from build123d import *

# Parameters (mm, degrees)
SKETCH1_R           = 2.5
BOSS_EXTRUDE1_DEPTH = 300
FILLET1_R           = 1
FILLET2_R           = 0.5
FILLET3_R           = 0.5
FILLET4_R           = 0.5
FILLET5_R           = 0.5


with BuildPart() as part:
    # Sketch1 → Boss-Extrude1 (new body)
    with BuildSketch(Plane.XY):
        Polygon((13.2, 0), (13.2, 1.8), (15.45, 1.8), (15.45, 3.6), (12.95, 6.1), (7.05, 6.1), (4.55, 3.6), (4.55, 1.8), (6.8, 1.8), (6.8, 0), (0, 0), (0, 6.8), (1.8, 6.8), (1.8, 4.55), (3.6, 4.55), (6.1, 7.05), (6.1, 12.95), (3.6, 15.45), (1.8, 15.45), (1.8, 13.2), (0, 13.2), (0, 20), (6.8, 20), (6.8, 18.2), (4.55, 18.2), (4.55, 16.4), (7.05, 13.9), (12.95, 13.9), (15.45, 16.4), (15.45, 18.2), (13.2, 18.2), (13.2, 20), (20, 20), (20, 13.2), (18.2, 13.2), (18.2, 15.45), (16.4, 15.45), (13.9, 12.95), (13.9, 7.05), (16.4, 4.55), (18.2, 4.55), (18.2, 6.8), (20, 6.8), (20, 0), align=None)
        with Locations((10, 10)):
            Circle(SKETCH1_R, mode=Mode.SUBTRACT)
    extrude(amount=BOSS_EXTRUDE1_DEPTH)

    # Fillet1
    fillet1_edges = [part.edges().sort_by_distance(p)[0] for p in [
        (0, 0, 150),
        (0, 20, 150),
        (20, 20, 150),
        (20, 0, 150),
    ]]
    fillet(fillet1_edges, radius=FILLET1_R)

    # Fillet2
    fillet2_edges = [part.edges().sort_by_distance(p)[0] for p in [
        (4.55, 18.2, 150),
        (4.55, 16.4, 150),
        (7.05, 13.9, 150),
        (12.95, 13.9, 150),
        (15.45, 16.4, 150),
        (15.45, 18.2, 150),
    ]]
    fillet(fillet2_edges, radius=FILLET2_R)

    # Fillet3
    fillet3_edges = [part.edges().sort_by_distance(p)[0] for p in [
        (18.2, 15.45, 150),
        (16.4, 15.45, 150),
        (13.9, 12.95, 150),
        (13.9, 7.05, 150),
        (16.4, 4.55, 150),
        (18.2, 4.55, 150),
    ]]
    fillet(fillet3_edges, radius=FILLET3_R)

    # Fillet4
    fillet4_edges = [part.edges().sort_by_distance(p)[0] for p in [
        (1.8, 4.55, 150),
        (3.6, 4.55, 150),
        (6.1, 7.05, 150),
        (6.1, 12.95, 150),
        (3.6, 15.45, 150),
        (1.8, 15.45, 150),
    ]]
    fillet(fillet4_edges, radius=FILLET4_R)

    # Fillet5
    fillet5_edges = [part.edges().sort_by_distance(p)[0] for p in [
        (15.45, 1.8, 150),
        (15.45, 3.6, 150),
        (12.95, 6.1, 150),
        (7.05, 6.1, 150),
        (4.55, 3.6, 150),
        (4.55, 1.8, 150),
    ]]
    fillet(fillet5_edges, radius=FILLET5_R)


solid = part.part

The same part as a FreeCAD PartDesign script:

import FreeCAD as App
import Part
import Sketcher
from FreeCAD import Vector


def edges_at(feature, points):
    """Names of the edges that pass closest to the given points."""
    edges = feature.Shape.Edges
    near = lambda p: min(range(len(edges)), key=lambda i: edges[i].distToShape(Part.Vertex(*p))[0])
    return sorted({f"Edge{near(p) + 1}" for p in points})

doc = App.newDocument("Part")
body = doc.addObject("PartDesign::Body", "Body")

sketch1 = body.newObject("Sketcher::SketchObject", "Sketch")
sketch1.AttachmentSupport = (doc.getObject("XY_Plane"), [""])
sketch1.MapMode = "FlatFace"
sketch1.addGeometry(Part.LineSegment(Vector(13.2, 1.8, 0), Vector(13.2, 0, 0)), False)
sketch1.addGeometry(Part.LineSegment(Vector(13.2, 0, 0), Vector(20, 0, 0)), False)
sketch1.addGeometry(Part.LineSegment(Vector(20, 0, 0), Vector(20, 6.8, 0)), False)
sketch1.addGeometry(Part.LineSegment(Vector(20, 6.8, 0), Vector(18.2, 6.8, 0)), False)
sketch1.addGeometry(Part.LineSegment(Vector(18.2, 6.8, 0), Vector(18.2, 4.55, 0)), False)
sketch1.addGeometry(Part.LineSegment(Vector(18.2, 4.55, 0), Vector(16.4, 4.55, 0)), False)
sketch1.addGeometry(Part.LineSegment(Vector(16.4, 4.55, 0), Vector(13.9, 7.05, 0)), False)
sketch1.addGeometry(Part.LineSegment(Vector(13.9, 7.05, 0), Vector(13.9, 12.95, 0)), False)
sketch1.addGeometry(Part.LineSegment(Vector(13.9, 12.95, 0), Vector(16.4, 15.45, 0)), False)
sketch1.addGeometry(Part.LineSegment(Vector(16.4, 15.45, 0), Vector(18.2, 15.45, 0)), False)
sketch1.addGeometry(Part.LineSegment(Vector(18.2, 15.45, 0), Vector(18.2, 13.2, 0)), False)
sketch1.addGeometry(Part.LineSegment(Vector(18.2, 13.2, 0), Vector(20, 13.2, 0)), False)
sketch1.addGeometry(Part.LineSegment(Vector(20, 13.2, 0), Vector(20, 20, 0)), False)
sketch1.addGeometry(Part.LineSegment(Vector(20, 20, 0), Vector(13.2, 20, 0)), False)
sketch1.addGeometry(Part.LineSegment(Vector(13.2, 20, 0), Vector(13.2, 18.2, 0)), False)
sketch1.addGeometry(Part.LineSegment(Vector(13.2, 18.2, 0), Vector(15.45, 18.2, 0)), False)
sketch1.addGeometry(Part.LineSegment(Vector(15.45, 18.2, 0), Vector(15.45, 16.4, 0)), False)
sketch1.addGeometry(Part.LineSegment(Vector(15.45, 16.4, 0), Vector(12.95, 13.9, 0)), False)
sketch1.addGeometry(Part.LineSegment(Vector(12.95, 13.9, 0), Vector(7.05, 13.9, 0)), False)
sketch1.addGeometry(Part.LineSegment(Vector(7.05, 13.9, 0), Vector(4.55, 16.4, 0)), False)
sketch1.addGeometry(Part.LineSegment(Vector(4.55, 16.4, 0), Vector(4.55, 18.2, 0)), False)
sketch1.addGeometry(Part.LineSegment(Vector(4.55, 18.2, 0), Vector(6.8, 18.2, 0)), False)
sketch1.addGeometry(Part.LineSegment(Vector(6.8, 18.2, 0), Vector(6.8, 20, 0)), False)
sketch1.addGeometry(Part.LineSegment(Vector(6.8, 20, 0), Vector(0, 20, 0)), False)
sketch1.addGeometry(Part.LineSegment(Vector(0, 20, 0), Vector(0, 13.2, 0)), False)
sketch1.addGeometry(Part.LineSegment(Vector(0, 13.2, 0), Vector(1.8, 13.2, 0)), False)
sketch1.addGeometry(Part.LineSegment(Vector(1.8, 13.2, 0), Vector(1.8, 15.45, 0)), False)
sketch1.addGeometry(Part.LineSegment(Vector(1.8, 15.45, 0), Vector(3.6, 15.45, 0)), False)
sketch1.addGeometry(Part.LineSegment(Vector(3.6, 15.45, 0), Vector(6.1, 12.95, 0)), False)
sketch1.addGeometry(Part.LineSegment(Vector(6.1, 12.95, 0), Vector(6.1, 7.05, 0)), False)
sketch1.addGeometry(Part.LineSegment(Vector(6.1, 7.05, 0), Vector(3.6, 4.55, 0)), False)
sketch1.addGeometry(Part.LineSegment(Vector(3.6, 4.55, 0), Vector(1.8, 4.55, 0)), False)
sketch1.addGeometry(Part.LineSegment(Vector(1.8, 4.55, 0), Vector(1.8, 6.8, 0)), False)
sketch1.addGeometry(Part.LineSegment(Vector(1.8, 6.8, 0), Vector(0, 6.8, 0)), False)
sketch1.addGeometry(Part.LineSegment(Vector(0, 6.8, 0), Vector(0, 0, 0)), False)
sketch1.addGeometry(Part.LineSegment(Vector(0, 0, 0), Vector(6.8, 0, 0)), False)
sketch1.addGeometry(Part.LineSegment(Vector(6.8, 0, 0), Vector(6.8, 1.8, 0)), False)
sketch1.addGeometry(Part.LineSegment(Vector(6.8, 1.8, 0), Vector(4.55, 1.8, 0)), False)
sketch1.addGeometry(Part.LineSegment(Vector(4.55, 1.8, 0), Vector(4.55, 3.6, 0)), False)
sketch1.addGeometry(Part.LineSegment(Vector(4.55, 3.6, 0), Vector(7.05, 6.1, 0)), False)
sketch1.addGeometry(Part.LineSegment(Vector(7.05, 6.1, 0), Vector(12.95, 6.1, 0)), False)
sketch1.addGeometry(Part.LineSegment(Vector(12.95, 6.1, 0), Vector(15.45, 3.6, 0)), False)
sketch1.addGeometry(Part.LineSegment(Vector(15.45, 3.6, 0), Vector(15.45, 1.8, 0)), False)
sketch1.addGeometry(Part.LineSegment(Vector(15.45, 1.8, 0), Vector(13.2, 1.8, 0)), False)
sketch1.addGeometry(Part.Circle(Vector(10, 10, 0), Vector(0, 0, 1), 2.5), False)
sketch1.addConstraint(Sketcher.Constraint("Coincident", 0, 2, 1, 1))
sketch1.addConstraint(Sketcher.Constraint("Coincident", 1, 2, 2, 1))
sketch1.addConstraint(Sketcher.Constraint("Coincident", 2, 2, 3, 1))
sketch1.addConstraint(Sketcher.Constraint("Coincident", 3, 2, 4, 1))
sketch1.addConstraint(Sketcher.Constraint("Coincident", 4, 2, 5, 1))
sketch1.addConstraint(Sketcher.Constraint("Coincident", 5, 2, 6, 1))
sketch1.addConstraint(Sketcher.Constraint("Coincident", 6, 2, 7, 1))
sketch1.addConstraint(Sketcher.Constraint("Coincident", 7, 2, 8, 1))
sketch1.addConstraint(Sketcher.Constraint("Coincident", 8, 2, 9, 1))
sketch1.addConstraint(Sketcher.Constraint("Coincident", 9, 2, 10, 1))
sketch1.addConstraint(Sketcher.Constraint("Coincident", 10, 2, 11, 1))
sketch1.addConstraint(Sketcher.Constraint("Coincident", 11, 2, 12, 1))
sketch1.addConstraint(Sketcher.Constraint("Coincident", 12, 2, 13, 1))
sketch1.addConstraint(Sketcher.Constraint("Coincident", 13, 2, 14, 1))
sketch1.addConstraint(Sketcher.Constraint("Coincident", 14, 2, 15, 1))
sketch1.addConstraint(Sketcher.Constraint("Coincident", 15, 2, 16, 1))
sketch1.addConstraint(Sketcher.Constraint("Coincident", 16, 2, 17, 1))
sketch1.addConstraint(Sketcher.Constraint("Coincident", 17, 2, 18, 1))
sketch1.addConstraint(Sketcher.Constraint("Coincident", 18, 2, 19, 1))
sketch1.addConstraint(Sketcher.Constraint("Coincident", 19, 2, 20, 1))
sketch1.addConstraint(Sketcher.Constraint("Coincident", 20, 2, 21, 1))
sketch1.addConstraint(Sketcher.Constraint("Coincident", 21, 2, 22, 1))
sketch1.addConstraint(Sketcher.Constraint("Coincident", 22, 2, 23, 1))
sketch1.addConstraint(Sketcher.Constraint("Coincident", 23, 2, 24, 1))
sketch1.addConstraint(Sketcher.Constraint("Coincident", 24, 2, 25, 1))
sketch1.addConstraint(Sketcher.Constraint("Coincident", 25, 2, 26, 1))
sketch1.addConstraint(Sketcher.Constraint("Coincident", 26, 2, 27, 1))
sketch1.addConstraint(Sketcher.Constraint("Coincident", 27, 2, 28, 1))
sketch1.addConstraint(Sketcher.Constraint("Coincident", 28, 2, 29, 1))
sketch1.addConstraint(Sketcher.Constraint("Coincident", 29, 2, 30, 1))
sketch1.addConstraint(Sketcher.Constraint("Coincident", 30, 2, 31, 1))
sketch1.addConstraint(Sketcher.Constraint("Coincident", 31, 2, 32, 1))
sketch1.addConstraint(Sketcher.Constraint("Coincident", 32, 2, 33, 1))
sketch1.addConstraint(Sketcher.Constraint("Coincident", 33, 2, 34, 1))
sketch1.addConstraint(Sketcher.Constraint("Coincident", 34, 2, 35, 1))
sketch1.addConstraint(Sketcher.Constraint("Coincident", 35, 2, 36, 1))
sketch1.addConstraint(Sketcher.Constraint("Coincident", 36, 2, 37, 1))
sketch1.addConstraint(Sketcher.Constraint("Coincident", 37, 2, 38, 1))
sketch1.addConstraint(Sketcher.Constraint("Coincident", 38, 2, 39, 1))
sketch1.addConstraint(Sketcher.Constraint("Coincident", 39, 2, 40, 1))
sketch1.addConstraint(Sketcher.Constraint("Coincident", 40, 2, 41, 1))
sketch1.addConstraint(Sketcher.Constraint("Coincident", 41, 2, 42, 1))
sketch1.addConstraint(Sketcher.Constraint("Coincident", 42, 2, 43, 1))
sketch1.addConstraint(Sketcher.Constraint("Coincident", 43, 2, 0, 1))
sketch1.addConstraint(Sketcher.Constraint("Vertical", 0))
sketch1.addConstraint(Sketcher.Constraint("Horizontal", 1))
sketch1.addConstraint(Sketcher.Constraint("Vertical", 2))
sketch1.addConstraint(Sketcher.Constraint("Horizontal", 3))
sketch1.addConstraint(Sketcher.Constraint("Vertical", 4))
sketch1.addConstraint(Sketcher.Constraint("Horizontal", 5))
sketch1.addConstraint(Sketcher.Constraint("Vertical", 7))
sketch1.addConstraint(Sketcher.Constraint("Horizontal", 9))
sketch1.addConstraint(Sketcher.Constraint("Vertical", 10))
sketch1.addConstraint(Sketcher.Constraint("Horizontal", 11))
sketch1.addConstraint(Sketcher.Constraint("Vertical", 12))
sketch1.addConstraint(Sketcher.Constraint("Horizontal", 13))
sketch1.addConstraint(Sketcher.Constraint("Vertical", 14))
sketch1.addConstraint(Sketcher.Constraint("Horizontal", 15))
sketch1.addConstraint(Sketcher.Constraint("Vertical", 16))
sketch1.addConstraint(Sketcher.Constraint("Horizontal", 18))
sketch1.addConstraint(Sketcher.Constraint("Vertical", 20))
sketch1.addConstraint(Sketcher.Constraint("Horizontal", 21))
sketch1.addConstraint(Sketcher.Constraint("Vertical", 22))
sketch1.addConstraint(Sketcher.Constraint("Horizontal", 23))
sketch1.addConstraint(Sketcher.Constraint("Vertical", 24))
sketch1.addConstraint(Sketcher.Constraint("Horizontal", 25))
sketch1.addConstraint(Sketcher.Constraint("Vertical", 26))
sketch1.addConstraint(Sketcher.Constraint("Horizontal", 27))
sketch1.addConstraint(Sketcher.Constraint("Vertical", 29))
sketch1.addConstraint(Sketcher.Constraint("Horizontal", 31))
sketch1.addConstraint(Sketcher.Constraint("Vertical", 32))
sketch1.addConstraint(Sketcher.Constraint("Horizontal", 33))
sketch1.addConstraint(Sketcher.Constraint("Vertical", 34))
sketch1.addConstraint(Sketcher.Constraint("Horizontal", 35))
sketch1.addConstraint(Sketcher.Constraint("Vertical", 36))
sketch1.addConstraint(Sketcher.Constraint("Horizontal", 37))
sketch1.addConstraint(Sketcher.Constraint("Vertical", 38))
sketch1.addConstraint(Sketcher.Constraint("Horizontal", 40))
sketch1.addConstraint(Sketcher.Constraint("Vertical", 42))
sketch1.addConstraint(Sketcher.Constraint("Horizontal", 43))
sketch1.addConstraint(Sketcher.Constraint("Coincident", 34, 2, -1, 1))
sketch1.addConstraint(Sketcher.Constraint("PointOnObject", 0, 2, -1))
sketch1.addConstraint(Sketcher.Constraint("PointOnObject", 23, 2, -2))
sketch1.addConstraint(Sketcher.Constraint("Perpendicular", 6, 8))
sketch1.addConstraint(Sketcher.Constraint("Parallel", 8, 17))
sketch1.addConstraint(Sketcher.Constraint("Perpendicular", 17, 19))
sketch1.addConstraint(Sketcher.Constraint("Parallel", 19, 28))
sketch1.addConstraint(Sketcher.Constraint("Perpendicular", 28, 30))
sketch1.addConstraint(Sketcher.Constraint("Parallel", 30, 39))
sketch1.addConstraint(Sketcher.Constraint("Perpendicular", 39, 41))
sketch1.addConstraint(Sketcher.Constraint("Horizontal", 16, 2, 19, 2))
sketch1.addConstraint(Sketcher.Constraint("Horizontal", 15, 2, 20, 2))
sketch1.addConstraint(Sketcher.Constraint("Horizontal", 13, 2, 22, 2))
sketch1.addConstraint(Sketcher.Constraint("Horizontal", 11, 2, 24, 2))
sketch1.addConstraint(Sketcher.Constraint("Horizontal", 9, 2, 26, 2))
sketch1.addConstraint(Sketcher.Constraint("Horizontal", 7, 2, 28, 2))
sketch1.addConstraint(Sketcher.Constraint("Horizontal", 6, 2, 29, 2))
sketch1.addConstraint(Sketcher.Constraint("Horizontal", 5, 2, 30, 2))
sketch1.addConstraint(Sketcher.Constraint("Horizontal", 3, 2, 32, 2))
sketch1.addConstraint(Sketcher.Constraint("Horizontal", 38, 2, 41, 2))
sketch1.addConstraint(Sketcher.Constraint("Horizontal", 37, 2, 42, 2))
sketch1.addConstraint(Sketcher.Constraint("Vertical", 5, 2, 8, 2))
sketch1.addConstraint(Sketcher.Constraint("Vertical", 4, 2, 9, 2))
sketch1.addConstraint(Sketcher.Constraint("Vertical", 2, 2, 11, 2))
sketch1.addConstraint(Sketcher.Constraint("Vertical", 0, 2, 13, 2))
sketch1.addConstraint(Sketcher.Constraint("Vertical", 27, 2, 30, 2))
sketch1.addConstraint(Sketcher.Constraint("Vertical", 26, 2, 31, 2))
sketch1.addConstraint(Sketcher.Constraint("Vertical", 22, 2, 35, 2))
sketch1.addConstraint(Sketcher.Constraint("Vertical", 20, 2, 37, 2))
sketch1.addConstraint(Sketcher.Constraint("Vertical", 18, 2, 39, 2))
sketch1.addConstraint(Sketcher.Constraint("Vertical", 17, 2, 40, 2))
sketch1.addConstraint(Sketcher.Constraint("Equal", 3, 5))
sketch1.addConstraint(Sketcher.Constraint("Equal", 15, 21))
sketch1.addConstraint(Sketcher.Constraint("Equal", 13, 23))
sketch1.addConstraint(Sketcher.Constraint("Equal", 11, 25))
sketch1.addConstraint(Sketcher.Constraint("Equal", 25, 27))
sketch1.addConstraint(Sketcher.Constraint("Equal", 33, 0))
sketch1.addConstraint(Sketcher.Constraint("Equal", 35, 2))
sketch1.addConstraint(Sketcher.Constraint("Equal", 43, 4))
sketch1.addConstraint(Sketcher.Constraint("Equal", 40, 7))
sketch1.addConstraint(Sketcher.Constraint("Equal", 4, 10))
sketch1.addConstraint(Sketcher.Constraint("Equal", 2, 12))
sketch1.addConstraint(Sketcher.Constraint("Equal", 0, 14))
sketch1.addConstraint(Sketcher.Constraint("Equal", 14, 16))
sketch1.addConstraint(Sketcher.Constraint("Equal", 36, 38))
sketch1.addConstraint(Sketcher.Constraint("Equal", 8, 17))
sketch1.addConstraint(Sketcher.Constraint("Diameter", 44, 5.0))
sketch1.addConstraint(Sketcher.Constraint("DistanceX", 1, 1, 1, 2, 6.8))
sketch1.addConstraint(Sketcher.Constraint("DistanceX", 3, 2, 3, 1, 1.8))
sketch1.addConstraint(Sketcher.Constraint("DistanceX", 18, 2, 18, 1, 5.9))
sketch1.addConstraint(Sketcher.Constraint("DistanceX", -1, 1, 44, 3, 10.0))
sketch1.addConstraint(Sketcher.Constraint("DistanceY", -1, 1, 44, 3, 10.0))
sketch1.addConstraint(Sketcher.Constraint("DistanceX", -1, 1, 1, 2, 20.0))
sketch1.addConstraint(Sketcher.Constraint("DistanceX", 15, 1, 15, 2, 2.25))
pad1 = body.newObject("PartDesign::Pad", "Pad")
pad1.Profile = sketch1
pad1.Length = 300
doc.recompute()

fillet = body.newObject("PartDesign::Fillet", "Fillet")
fillet.Base = (pad1, edges_at(pad1, [
    (0, 0, 150),
    (0, 20, 150),
    (20, 20, 150),
    (20, 0, 150),
]))
fillet.Radius = 1
doc.recompute()

fillet2 = body.newObject("PartDesign::Fillet", "Fillet001")
fillet2.Base = (fillet, edges_at(fillet, [
    (4.55, 18.2, 150),
    (4.55, 16.4, 150),
    (7.05, 13.9, 150),
    (12.95, 13.9, 150),
    (15.45, 16.4, 150),
    (15.45, 18.2, 150),
]))
fillet2.Radius = 0.5
doc.recompute()

fillet3 = body.newObject("PartDesign::Fillet", "Fillet002")
fillet3.Base = (fillet2, edges_at(fillet2, [
    (18.2, 15.45, 150),
    (16.4, 15.45, 150),
    (13.9, 12.95, 150),
    (13.9, 7.05, 150),
    (16.4, 4.55, 150),
    (18.2, 4.55, 150),
]))
fillet3.Radius = 0.5
doc.recompute()

fillet4 = body.newObject("PartDesign::Fillet", "Fillet003")
fillet4.Base = (fillet3, edges_at(fillet3, [
    (1.8, 4.55, 150),
    (3.6, 4.55, 150),
    (6.1, 7.05, 150),
    (6.1, 12.95, 150),
    (3.6, 15.45, 150),
    (1.8, 15.45, 150),
]))
fillet4.Radius = 0.5
doc.recompute()

fillet5 = body.newObject("PartDesign::Fillet", "Fillet004")
fillet5.Base = (fillet4, edges_at(fillet4, [
    (15.45, 1.8, 150),
    (15.45, 3.6, 150),
    (12.95, 6.1, 150),
    (7.05, 6.1, 150),
    (4.55, 3.6, 150),
    (4.55, 1.8, 150),
]))
fillet5.Radius = 0.5

doc.recompute()
